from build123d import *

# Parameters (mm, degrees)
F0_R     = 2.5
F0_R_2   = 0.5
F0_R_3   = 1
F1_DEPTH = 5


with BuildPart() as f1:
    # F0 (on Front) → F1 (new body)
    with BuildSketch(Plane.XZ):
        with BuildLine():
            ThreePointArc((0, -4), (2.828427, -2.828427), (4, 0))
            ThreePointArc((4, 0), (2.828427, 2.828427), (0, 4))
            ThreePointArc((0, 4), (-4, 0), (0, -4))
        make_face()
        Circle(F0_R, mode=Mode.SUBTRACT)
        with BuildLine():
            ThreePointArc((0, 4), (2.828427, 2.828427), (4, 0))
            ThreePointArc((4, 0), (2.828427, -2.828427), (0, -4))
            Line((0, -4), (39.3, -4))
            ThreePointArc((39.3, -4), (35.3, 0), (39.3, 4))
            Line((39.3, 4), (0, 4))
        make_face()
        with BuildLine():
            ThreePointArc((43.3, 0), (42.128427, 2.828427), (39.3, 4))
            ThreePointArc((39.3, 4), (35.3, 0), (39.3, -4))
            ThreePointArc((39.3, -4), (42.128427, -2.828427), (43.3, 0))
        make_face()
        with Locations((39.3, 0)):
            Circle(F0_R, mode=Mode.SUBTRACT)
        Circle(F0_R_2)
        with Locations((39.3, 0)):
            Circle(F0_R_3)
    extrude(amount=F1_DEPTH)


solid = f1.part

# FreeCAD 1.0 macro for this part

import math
import FreeCAD as App
import Part
import Sketcher

V = App.Vector
Q = App.Units.Quantity

doc = App.newDocument("Part")
params = doc.addObject("Spreadsheet::Sheet", "Params")
for row, (alias, value) in enumerate([
    ("sketch1_diameter", "5 mm"),
    ("sketch1_diameter2", "1 mm"),
    ("sketch1_diameter3", "2 mm"),
    ("sketch1_radius", "4 mm"),
    ("sketch1_width", "39.3 mm"),
    ("pad1_length", "5 mm"),
], start=1):
    params.set(f"A{row}", alias)
    params.set(f"B{row}", "=" + value)
    params.setAlias(f"B{row}", alias)

body = doc.addObject("PartDesign::Body", "Body")
body.AllowCompound = True

sketch1 = doc.addObject("Sketcher::SketchObject", "Sketch")
body.addObject(sketch1)
sketch1.AttachmentSupport = (doc.XZ_Plane, [""])
sketch1.MapMode = "FlatFace"
sketch1.addGeometry([
    Part.ArcOfCircle(Part.Circle(V(0, 0, 0), V(0, 0, 1), 4), math.radians(90), math.radians(270)),
    Part.LineSegment(V(0, -4, 0), V(39.3, -4, 0)),
    Part.ArcOfCircle(Part.Circle(V(39.3, 0, 0), V(0, 0, 1), 4), math.radians(-90), math.radians(0)),
    Part.ArcOfCircle(Part.Circle(V(39.3, 0, 0), V(0, 0, 1), 4), math.radians(0), math.radians(90)),
    Part.LineSegment(V(39.3, 4, 0), V(0, 4, 0)),
    Part.Circle(V(0, 0, 0), V(0, 0, 1), 2.5),
    Part.Circle(V(39.3, 0, 0), V(0, 0, 1), 2.5),
    Part.Circle(V(0, 0, 0), V(0, 0, 1), 0.5),
    Part.Circle(V(39.3, 0, 0), V(0, 0, 1), 1),
], False)
sketch1.addConstraint([
    Sketcher.Constraint("Tangent", 0, 2, 1, 1),
    Sketcher.Constraint("Tangent", 1, 2, 2, 1),
    Sketcher.Constraint("Tangent", 2, 2, 3, 1),
    Sketcher.Constraint("Tangent", 3, 2, 4, 1),
    Sketcher.Constraint("Tangent", 4, 2, 0, 1),
    Sketcher.Constraint("Horizontal", 1),
    Sketcher.Constraint("Horizontal", 4),
    Sketcher.Constraint("Coincident", 0, 3, -1, 1),
    Sketcher.Constraint("Coincident", 5, 3, -1, 1),
    Sketcher.Constraint("Coincident", 7, 3, -1, 1),
    Sketcher.Constraint("Coincident", 6, 3, 2, 3),
    Sketcher.Constraint("Coincident", 8, 3, 2, 3),
    Sketcher.Constraint("Equal", 0, 2),
    Sketcher.Constraint("Equal", 5, 6),
    Sketcher.Constraint("PointOnObject", 2, 2, -1),
    Sketcher.Constraint("Diameter", 5, Q("5 mm")),
    Sketcher.Constraint("Diameter", 7, Q("1 mm")),
    Sketcher.Constraint("Diameter", 8, Q("2 mm")),
    Sketcher.Constraint("Radius", 0, Q("4 mm")),
    Sketcher.Constraint("DistanceX", 1, 1, 1, 2, Q("39.3 mm")),
])
sketch1.setExpression("Constraints[15]", "Params.sketch1_diameter")
sketch1.setExpression("Constraints[16]", "Params.sketch1_diameter2")
sketch1.setExpression("Constraints[17]", "Params.sketch1_diameter3")
sketch1.setExpression("Constraints[18]", "Params.sketch1_radius")
sketch1.setExpression("Constraints[19]", "Params.sketch1_width")
pad1 = doc.addObject("PartDesign::Pad", "Pad")
body.addObject(pad1)
pad1.Profile = sketch1
pad1.setExpression("Length", "Params.pad1_length")

doc.recompute()
